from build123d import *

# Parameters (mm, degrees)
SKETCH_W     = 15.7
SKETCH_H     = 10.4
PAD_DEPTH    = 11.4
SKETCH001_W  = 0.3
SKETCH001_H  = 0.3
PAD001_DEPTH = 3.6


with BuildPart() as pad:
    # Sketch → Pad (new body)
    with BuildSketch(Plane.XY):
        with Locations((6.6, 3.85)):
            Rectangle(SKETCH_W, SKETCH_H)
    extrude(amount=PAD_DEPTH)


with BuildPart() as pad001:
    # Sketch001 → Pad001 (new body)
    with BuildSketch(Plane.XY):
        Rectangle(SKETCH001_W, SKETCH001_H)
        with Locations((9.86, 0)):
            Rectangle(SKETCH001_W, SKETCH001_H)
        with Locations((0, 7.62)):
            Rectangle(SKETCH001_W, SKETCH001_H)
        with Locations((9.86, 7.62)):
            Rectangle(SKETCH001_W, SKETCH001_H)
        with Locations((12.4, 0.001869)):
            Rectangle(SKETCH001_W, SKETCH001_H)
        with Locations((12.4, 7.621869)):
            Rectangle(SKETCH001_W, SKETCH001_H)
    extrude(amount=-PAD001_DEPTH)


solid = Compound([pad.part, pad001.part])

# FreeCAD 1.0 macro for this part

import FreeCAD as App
import Part
import Sketcher

doc = App.newDocument("Part")
body = doc.addObject("PartDesign::Body", "Body")

sketch1 = body.newObject("Sketcher::SketchObject", "Sketch")
sketch1.AttachmentSupport = (doc.getObject("XY_Plane"), [""])
sketch1.MapMode = "FlatFace"
sketch1.addGeometry(Part.LineSegment(App.Vector(-1, 9, 0), App.Vector(-1, -1, 0)), False)
sketch1.addGeometry(Part.LineSegment(App.Vector(-1, -1, 0), App.Vector(14, -1, 0)), False)
sketch1.addGeometry(Part.LineSegment(App.Vector(14, -1, 0), App.Vector(14, 9, 0)), False)
sketch1.addGeometry(Part.LineSegment(App.Vector(14, 9, 0), App.Vector(-1, 9, 0)), False)
sketch1.addConstraint(Sketcher.Constraint("Coincident", 0, 2, 1, 1))
sketch1.addConstraint(Sketcher.Constraint("Coincident", 1, 2, 2, 1))
sketch1.addConstraint(Sketcher.Constraint("Coincident", 2, 2, 3, 1))
sketch1.addConstraint(Sketcher.Constraint("Coincident", 3, 2, 0, 1))
sketch1.addConstraint(Sketcher.Constraint("Vertical", 0))
sketch1.addConstraint(Sketcher.Constraint("Horizontal", 1))
sketch1.addConstraint(Sketcher.Constraint("Vertical", 2))
sketch1.addConstraint(Sketcher.Constraint("Horizontal", 3))
sketch1.addConstraint(Sketcher.Constraint("DistanceX", 1, 1, 1, 2, 15.7))
sketch1.addConstraint(Sketcher.Constraint("DistanceY", 0, 2, 0, 1, 10.4))
sketch1.addConstraint(Sketcher.Constraint("DistanceX", 0, 2, -1, 1, 1.25))
sketch1.addConstraint(Sketcher.Constraint("DistanceY", 0, 2, -1, 1, 1.35))
pad1 = body.newObject("PartDesign::Pad", "Pad")
pad1.Profile = sketch1
pad1.Length = 11.4
body2 = doc.addObject("PartDesign::Body", "Body001")
body2.AllowCompound = True

sketch2 = body2.newObject("Sketcher::SketchObject", "Sketch001")
sketch2.AttachmentSupport = (doc.getObject("XY_Plane001"), [""])
sketch2.MapMode = "FlatFace"
sketch2.addGeometry(Part.LineSegment(App.Vector(-0.15, 0.15, 0), App.Vector(-0.15, -0.15, 0)), False)
sketch2.addGeometry(Part.LineSegment(App.Vector(-0.15, -0.15, 0), App.Vector(0.15, -0.15, 0)), False)
sketch2.addGeometry(Part.LineSegment(App.Vector(0.15, -0.15, 0), App.Vector(0.15, 0.15, 0)), False)
sketch2.addGeometry(Part.LineSegment(App.Vector(0.15, 0.15, 0), App.Vector(-0.15, 0.15, 0)), False)
sketch2.addGeometry(Part.LineSegment(App.Vector(9.71, 0.15, 0), App.Vector(9.71, -0.15, 0)), False)
sketch2.addGeometry(Part.LineSegment(App.Vector(9.71, -0.15, 0), App.Vector(10.01, -0.15, 0)), False)
sketch2.addGeometry(Part.LineSegment(App.Vector(10.01, -0.15, 0), App.Vector(10.01, 0.15, 0)), False)
sketch2.addGeometry(Part.LineSegment(App.Vector(10.01, 0.15, 0), App.Vector(9.71, 0.15, 0)), False)
sketch2.addGeometry(Part.LineSegment(App.Vector(-0.15, 7.77, 0), App.Vector(-0.15, 7.47, 0)), False)
sketch2.addGeometry(Part.LineSegment(App.Vector(-0.15, 7.47, 0), App.Vector(0.15, 7.47, 0)), False)
sketch2.addGeometry(Part.LineSegment(App.Vector(0.15, 7.47, 0), App.Vector(0.15, 7.77, 0)), False)
sketch2.addGeometry(Part.LineSegment(App.Vector(0.15, 7.77, 0), App.Vector(-0.15, 7.77, 0)), False)
sketch2.addGeometry(Part.LineSegment(App.Vector(9.71, 7.77, 0), App.Vector(9.71, 7.47, 0)), False)
sketch2.addGeometry(Part.LineSegment(App.Vector(9.71, 7.47, 0), App.Vector(10.01, 7.47, 0)), False)
sketch2.addGeometry(Part.LineSegment(App.Vector(10.01, 7.47, 0), App.Vector(10.01, 7.77, 0)), False)
sketch2.addGeometry(Part.LineSegment(App.Vector(10.01, 7.77, 0), App.Vector(9.71, 7.77, 0)), False)
sketch2.addGeometry(Part.LineSegment(App.Vector(12.25, 0.15, 0), App.Vector(12.25, -0.15, 0)), False)
sketch2.addGeometry(Part.LineSegment(App.Vector(12.25, -0.15, 0), App.Vector(12.55, -0.15, 0)), False)
sketch2.addGeometry(Part.LineSegment(App.Vector(12.55, -0.15, 0), App.Vector(12.55, 0.15, 0)), False)
sketch2.addGeometry(Part.LineSegment(App.Vector(12.55, 0.15, 0), App.Vector(12.25, 0.15, 0)), False)
sketch2.addGeometry(Part.LineSegment(App.Vector(12.25, 7.77, 0), App.Vector(12.25, 7.47, 0)), False)
sketch2.addGeometry(Part.LineSegment(App.Vector(12.25, 7.47, 0), App.Vector(12.55, 7.47, 0)), False)
sketch2.addGeometry(Part.LineSegment(App.Vector(12.55, 7.47, 0), App.Vector(12.55, 7.77, 0)), False)
sketch2.addGeometry(Part.LineSegment(App.Vector(12.55, 7.77, 0), App.Vector(12.25, 7.77, 0)), False)
sketch2.addConstraint(Sketcher.Constraint("Coincident", 0, 2, 1, 1))
sketch2.addConstraint(Sketcher.Constraint("Coincident", 1, 2, 2, 1))
sketch2.addConstraint(Sketcher.Constraint("Coincident", 2, 2, 3, 1))
sketch2.addConstraint(Sketcher.Constraint("Coincident", 3, 2, 0, 1))
sketch2.addConstraint(Sketcher.Constraint("Coincident", 4, 2, 5, 1))
sketch2.addConstraint(Sketcher.Constraint("Coincident", 5, 2, 6, 1))
sketch2.addConstraint(Sketcher.Constraint("Coincident", 6, 2, 7, 1))
sketch2.addConstraint(Sketcher.Constraint("Coincident", 7, 2, 4, 1))
sketch2.addConstraint(Sketcher.Constraint("Coincident", 8, 2, 9, 1))
sketch2.addConstraint(Sketcher.Constraint("Coincident", 9, 2, 10, 1))
sketch2.addConstraint(Sketcher.Constraint("Coincident", 10, 2, 11, 1))
sketch2.addConstraint(Sketcher.Constraint("Coincident", 11, 2, 8, 1))
sketch2.addConstraint(Sketcher.Constraint("Coincident", 12, 2, 13, 1))
sketch2.addConstraint(Sketcher.Constraint("Coincident", 13, 2, 14, 1))
sketch2.addConstraint(Sketcher.Constraint("Coincident", 14, 2, 15, 1))
sketch2.addConstraint(Sketcher.Constraint("Coincident", 15, 2, 12, 1))
sketch2.addConstraint(Sketcher.Constraint("Coincident", 16, 2, 17, 1))
sketch2.addConstraint(Sketcher.Constraint("Coincident", 17, 2, 18, 1))
sketch2.addConstraint(Sketcher.Constraint("Coincident", 18, 2, 19, 1))
sketch2.addConstraint(Sketcher.Constraint("Coincident", 19, 2, 16, 1))
sketch2.addConstraint(Sketcher.Constraint("Coincident", 20, 2, 21, 1))
sketch2.addConstraint(Sketcher.Constraint("Coincident", 21, 2, 22, 1))
sketch2.addConstraint(Sketcher.Constraint("Coincident", 22, 2, 23, 1))
sketch2.addConstraint(Sketcher.Constraint("Coincident", 23, 2, 20, 1))
sketch2.addConstraint(Sketcher.Constraint("Vertical", 0))
sketch2.addConstraint(Sketcher.Constraint("Horizontal", 1))
sketch2.addConstraint(Sketcher.Constraint("Vertical", 2))
sketch2.addConstraint(Sketcher.Constraint("Horizontal", 3))
sketch2.addConstraint(Sketcher.Constraint("Vertical", 4))
sketch2.addConstraint(Sketcher.Constraint("Horizontal", 5))
sketch2.addConstraint(Sketcher.Constraint("Vertical", 6))
sketch2.addConstraint(Sketcher.Constraint("Horizontal", 7))
sketch2.addConstraint(Sketcher.Constraint("Vertical", 8))
sketch2.addConstraint(Sketcher.Constraint("Horizontal", 9))
sketch2.addConstraint(Sketcher.Constraint("Vertical", 10))
sketch2.addConstraint(Sketcher.Constraint("Horizontal", 11))
sketch2.addConstraint(Sketcher.Constraint("Vertical", 12))
sketch2.addConstraint(Sketcher.Constraint("Horizontal", 13))
sketch2.addConstraint(Sketcher.Constraint("Vertical", 14))
sketch2.addConstraint(Sketcher.Constraint("Horizontal", 15))
sketch2.addConstraint(Sketcher.Constraint("Vertical", 16))
sketch2.addConstraint(Sketcher.Constraint("Horizontal", 17))
sketch2.addConstraint(Sketcher.Constraint("Vertical", 18))
sketch2.addConstraint(Sketcher.Constraint("Horizontal", 19))
sketch2.addConstraint(Sketcher.Constraint("Vertical", 20))
sketch2.addConstraint(Sketcher.Constraint("Horizontal", 21))
sketch2.addConstraint(Sketcher.Constraint("Vertical", 22))
sketch2.addConstraint(Sketcher.Constraint("Horizontal", 23))
sketch2.addConstraint(Sketcher.Constraint("Symmetric", 0, 2, 2, 2, -1, 1))
sketch2.addConstraint(Sketcher.Constraint("Horizontal", 1, 2, 4, 2))
sketch2.addConstraint(Sketcher.Constraint("Horizontal", 3, 2, 6, 2))
sketch2.addConstraint(Sketcher.Constraint("Horizontal", 9, 2, 12, 2))
sketch2.addConstraint(Sketcher.Constraint("Horizontal", 11, 2, 14, 2))
sketch2.addConstraint(Sketcher.Constraint("Vertical", 3, 2, 8, 2))
sketch2.addConstraint(Sketcher.Constraint("Vertical", 2, 2, 9, 2))
sketch2.addConstraint(Sketcher.Constraint("Vertical", 7, 2, 12, 2))
sketch2.addConstraint(Sketcher.Constraint("Vertical", 6, 2, 13, 2))
sketch2.addConstraint(Sketcher.Constraint("Vertical", 19, 2, 20, 2))
sketch2.addConstraint(Sketcher.Constraint("Vertical", 18, 2, 21, 2))
sketch2.addConstraint(Sketcher.Constraint("Equal", 3, 5))
sketch2.addConstraint(Sketcher.Constraint("Equal", 15, 17))
sketch2.addConstraint(Sketcher.Constraint("Equal", 23, 0))
sketch2.addConstraint(Sketcher.Constraint("Equal", 6, 8))
sketch2.addConstraint(Sketcher.Constraint("Equal", 14, 16))
sketch2.addConstraint(Sketcher.Constraint("Equal", 18, 20))
sketch2.addConstraint(Sketcher.Constraint("DistanceX", 1, 1, 1, 2, 0.3))
sketch2.addConstraint(Sketcher.Constraint("DistanceX", -1, 1, 4, 2, 9.71))
sketch2.addConstraint(Sketcher.Constraint("DistanceY", -1, 1, 8, 2, 7.47))
sketch2.addConstraint(Sketcher.Constraint("DistanceX", -1, 1, 16, 2, 12.25))
sketch2.addConstraint(Sketcher.Constraint("DistanceY", 19, 2, 20, 2, 7.32))
sketch2.addConstraint(Sketcher.Constraint("DistanceY", 16, 2, -1, 1, 0.148131))
pad2 = body2.newObject("PartDesign::Pad", "Pad001")
pad2.Profile = sketch2
pad2.Length = 3.6
pad2.Reversed = True

doc.recompute()
